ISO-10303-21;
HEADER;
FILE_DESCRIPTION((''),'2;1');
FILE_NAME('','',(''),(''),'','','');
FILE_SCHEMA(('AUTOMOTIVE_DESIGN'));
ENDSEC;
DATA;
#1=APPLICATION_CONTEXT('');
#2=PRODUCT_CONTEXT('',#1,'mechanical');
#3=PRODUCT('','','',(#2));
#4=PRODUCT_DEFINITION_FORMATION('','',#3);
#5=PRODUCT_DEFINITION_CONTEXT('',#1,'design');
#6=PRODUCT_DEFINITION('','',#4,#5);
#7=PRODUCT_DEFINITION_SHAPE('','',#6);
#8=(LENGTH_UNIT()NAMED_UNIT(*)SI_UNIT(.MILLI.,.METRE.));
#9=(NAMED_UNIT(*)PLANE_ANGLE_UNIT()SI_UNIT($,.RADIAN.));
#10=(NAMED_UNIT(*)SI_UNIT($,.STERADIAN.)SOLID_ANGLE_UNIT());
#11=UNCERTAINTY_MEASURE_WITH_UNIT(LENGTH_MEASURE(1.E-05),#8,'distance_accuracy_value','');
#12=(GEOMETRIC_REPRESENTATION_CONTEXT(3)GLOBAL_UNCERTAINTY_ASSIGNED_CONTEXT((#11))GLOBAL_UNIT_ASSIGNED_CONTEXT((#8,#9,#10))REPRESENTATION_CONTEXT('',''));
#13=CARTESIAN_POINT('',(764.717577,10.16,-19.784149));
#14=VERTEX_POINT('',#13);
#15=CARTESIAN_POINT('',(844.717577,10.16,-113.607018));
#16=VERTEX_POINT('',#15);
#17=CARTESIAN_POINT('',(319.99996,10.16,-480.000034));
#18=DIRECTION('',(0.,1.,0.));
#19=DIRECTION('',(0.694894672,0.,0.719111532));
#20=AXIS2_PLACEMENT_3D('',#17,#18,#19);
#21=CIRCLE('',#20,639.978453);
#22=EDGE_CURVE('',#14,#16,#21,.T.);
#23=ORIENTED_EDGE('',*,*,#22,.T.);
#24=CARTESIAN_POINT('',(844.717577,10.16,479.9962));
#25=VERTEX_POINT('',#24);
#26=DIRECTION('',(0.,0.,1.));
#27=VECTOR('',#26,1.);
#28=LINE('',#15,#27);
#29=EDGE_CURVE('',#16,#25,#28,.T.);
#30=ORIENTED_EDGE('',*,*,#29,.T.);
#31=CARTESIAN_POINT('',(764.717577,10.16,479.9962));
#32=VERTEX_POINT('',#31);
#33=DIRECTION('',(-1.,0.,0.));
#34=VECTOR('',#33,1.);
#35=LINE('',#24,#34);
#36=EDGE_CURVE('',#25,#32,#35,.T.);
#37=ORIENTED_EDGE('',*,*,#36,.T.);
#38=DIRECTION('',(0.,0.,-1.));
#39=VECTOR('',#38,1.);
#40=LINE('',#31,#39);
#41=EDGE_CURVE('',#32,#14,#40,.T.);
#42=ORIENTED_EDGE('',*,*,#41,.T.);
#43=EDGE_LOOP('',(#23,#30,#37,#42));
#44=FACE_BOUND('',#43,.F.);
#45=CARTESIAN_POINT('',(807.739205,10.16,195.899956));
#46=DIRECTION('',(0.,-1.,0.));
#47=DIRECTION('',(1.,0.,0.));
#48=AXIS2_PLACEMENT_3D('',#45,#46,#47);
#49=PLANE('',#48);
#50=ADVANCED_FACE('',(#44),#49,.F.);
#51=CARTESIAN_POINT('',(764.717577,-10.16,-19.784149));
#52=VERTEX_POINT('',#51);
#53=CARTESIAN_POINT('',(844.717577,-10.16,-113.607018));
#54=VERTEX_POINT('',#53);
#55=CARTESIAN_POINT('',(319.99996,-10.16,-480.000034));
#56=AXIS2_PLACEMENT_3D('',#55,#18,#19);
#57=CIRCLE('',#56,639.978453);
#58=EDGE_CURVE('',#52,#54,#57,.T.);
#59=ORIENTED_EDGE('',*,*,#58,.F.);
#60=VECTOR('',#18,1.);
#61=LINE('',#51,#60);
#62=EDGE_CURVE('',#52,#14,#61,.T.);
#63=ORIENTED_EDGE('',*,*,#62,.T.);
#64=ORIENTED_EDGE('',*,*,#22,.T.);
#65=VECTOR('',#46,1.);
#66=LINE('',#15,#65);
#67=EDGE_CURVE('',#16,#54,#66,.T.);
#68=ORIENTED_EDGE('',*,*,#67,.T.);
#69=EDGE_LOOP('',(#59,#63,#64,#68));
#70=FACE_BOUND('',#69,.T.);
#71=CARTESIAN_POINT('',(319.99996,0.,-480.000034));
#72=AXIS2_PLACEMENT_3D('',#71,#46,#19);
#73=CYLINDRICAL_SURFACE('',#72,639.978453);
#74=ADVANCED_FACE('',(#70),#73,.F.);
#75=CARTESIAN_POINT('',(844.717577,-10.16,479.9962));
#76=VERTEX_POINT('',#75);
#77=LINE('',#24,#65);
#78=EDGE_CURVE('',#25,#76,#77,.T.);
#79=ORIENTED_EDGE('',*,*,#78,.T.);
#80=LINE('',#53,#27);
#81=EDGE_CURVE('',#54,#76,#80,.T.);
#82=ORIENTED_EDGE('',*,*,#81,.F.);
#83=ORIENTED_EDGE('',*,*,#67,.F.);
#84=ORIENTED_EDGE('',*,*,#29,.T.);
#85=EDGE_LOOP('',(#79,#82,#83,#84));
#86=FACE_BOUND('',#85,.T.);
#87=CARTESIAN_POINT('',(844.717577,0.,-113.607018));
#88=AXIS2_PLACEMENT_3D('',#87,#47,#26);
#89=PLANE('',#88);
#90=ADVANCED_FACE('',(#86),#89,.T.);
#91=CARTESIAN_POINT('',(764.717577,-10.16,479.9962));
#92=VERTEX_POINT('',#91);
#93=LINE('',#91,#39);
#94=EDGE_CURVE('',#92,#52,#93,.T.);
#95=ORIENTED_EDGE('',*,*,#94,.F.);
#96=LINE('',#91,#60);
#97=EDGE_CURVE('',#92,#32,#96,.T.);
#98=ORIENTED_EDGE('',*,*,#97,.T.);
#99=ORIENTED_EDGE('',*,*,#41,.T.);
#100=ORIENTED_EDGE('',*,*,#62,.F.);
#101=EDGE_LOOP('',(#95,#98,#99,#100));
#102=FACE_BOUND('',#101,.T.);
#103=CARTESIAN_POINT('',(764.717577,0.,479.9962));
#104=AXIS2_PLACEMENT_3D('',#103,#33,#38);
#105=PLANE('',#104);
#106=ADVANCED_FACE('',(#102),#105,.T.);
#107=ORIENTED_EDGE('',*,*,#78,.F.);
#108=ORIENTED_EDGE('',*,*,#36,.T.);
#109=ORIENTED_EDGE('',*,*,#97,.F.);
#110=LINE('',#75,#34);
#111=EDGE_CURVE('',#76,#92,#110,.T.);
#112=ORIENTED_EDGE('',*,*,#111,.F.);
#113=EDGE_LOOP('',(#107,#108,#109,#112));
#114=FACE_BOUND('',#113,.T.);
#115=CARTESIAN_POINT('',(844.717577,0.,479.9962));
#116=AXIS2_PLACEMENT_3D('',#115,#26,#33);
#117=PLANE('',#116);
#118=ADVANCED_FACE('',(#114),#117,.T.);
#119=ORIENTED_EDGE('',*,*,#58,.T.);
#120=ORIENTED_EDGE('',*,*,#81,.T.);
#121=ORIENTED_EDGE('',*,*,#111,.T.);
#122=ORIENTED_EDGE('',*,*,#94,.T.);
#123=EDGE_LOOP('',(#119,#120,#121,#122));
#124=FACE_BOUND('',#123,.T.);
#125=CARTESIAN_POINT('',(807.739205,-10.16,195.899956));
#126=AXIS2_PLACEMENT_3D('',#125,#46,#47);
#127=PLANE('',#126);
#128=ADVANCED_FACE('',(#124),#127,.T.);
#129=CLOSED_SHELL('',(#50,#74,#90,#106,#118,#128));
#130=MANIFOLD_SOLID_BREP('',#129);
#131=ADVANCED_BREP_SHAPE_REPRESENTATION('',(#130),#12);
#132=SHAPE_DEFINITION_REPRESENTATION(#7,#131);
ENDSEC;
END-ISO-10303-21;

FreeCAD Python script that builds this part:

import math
import FreeCAD as App
import Part
import Sketcher

doc = App.newDocument("Part")
params = doc.addObject("Spreadsheet::Sheet", "Params")
for row, (alias, value) in enumerate([
    ("sketch1_width", "80 mm"),
    ("pad1_length", "20.32 mm"),
], start=1):
    params.set(f"A{row}", alias)
    params.set(f"B{row}", "=" + value)
    params.setAlias(f"B{row}", alias)

body = doc.addObject("PartDesign::Body", "Body")

sketch1 = doc.addObject("Sketcher::SketchObject", "Sketch")
body.addObject(sketch1)
sketch1.AttachmentSupport = (doc.XZ_Plane, [""])
sketch1.MapMode = "FlatFace"
sketch1.addGeometry([
    Part.ArcOfCircle(Part.Circle(App.Vector(319.99996, -480.000034, 0), App.Vector(0, 0, 1), 639.978453), math.radians(34.925327), math.radians(45.981175)),
    Part.LineSegment(App.Vector(844.717577, -113.607018, 0), App.Vector(844.717577, 479.9962, 0)),
    Part.LineSegment(App.Vector(844.717577, 479.9962, 0), App.Vector(764.717577, 479.9962, 0)),
    Part.LineSegment(App.Vector(764.717577, 479.9962, 0), App.Vector(764.717577, -19.784149, 0)),
], False)
sketch1.addConstraint([
    Sketcher.Constraint("Coincident", 0, 1, 1, 1),
    Sketcher.Constraint("Coincident", 1, 2, 2, 1),
    Sketcher.Constraint("Coincident", 2, 2, 3, 1),
    Sketcher.Constraint("Coincident", 3, 2, 0, 2),
    Sketcher.Constraint("Vertical", 1),
    Sketcher.Constraint("Horizontal", 2),
    Sketcher.Constraint("Vertical", 3),
    Sketcher.Constraint("DistanceX", 2, 2, 2, 1, 80.0),
    Sketcher.Constraint("Radius", 0, 639.978453),
    Sketcher.Constraint("DistanceY", 1, 1, 1, 2, 593.603218),
    Sketcher.Constraint("DistanceY", 3, 2, 3, 1, 499.780349),
    Sketcher.Constraint("DistanceY", -1, 1, 1, 2, 479.9962),
    Sketcher.Constraint("DistanceX", -1, 1, 0, 3, 319.99996),
])
sketch1.setExpression("Constraints[7]", "Params.sketch1_width")
pad1 = doc.addObject("PartDesign::Pad", "Pad")
body.addObject(pad1)
pad1.Profile = sketch1
pad1.setExpression("Length", "Params.pad1_length")
pad1.Midplane = True

doc.recompute()
